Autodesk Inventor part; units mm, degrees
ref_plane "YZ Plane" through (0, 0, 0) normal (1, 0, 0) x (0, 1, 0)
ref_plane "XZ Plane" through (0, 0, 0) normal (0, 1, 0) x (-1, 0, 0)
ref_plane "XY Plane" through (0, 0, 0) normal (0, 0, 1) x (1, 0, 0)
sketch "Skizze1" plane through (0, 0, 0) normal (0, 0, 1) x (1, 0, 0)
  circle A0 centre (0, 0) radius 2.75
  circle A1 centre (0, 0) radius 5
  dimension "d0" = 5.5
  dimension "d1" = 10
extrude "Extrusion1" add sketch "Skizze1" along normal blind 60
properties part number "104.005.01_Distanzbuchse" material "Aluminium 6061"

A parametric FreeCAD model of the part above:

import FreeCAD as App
import Part
import Sketcher
from FreeCAD import Vector
Q = App.Units.Quantity

doc = App.newDocument("Part")
body = doc.addObject("PartDesign::Body", "Body")

# Sketch on XY plane
sketch1 = body.newObject("Sketcher::SketchObject", "Sketch")
sketch1.AttachmentSupport = (doc.getObject("XY_Plane"), [""])
sketch1.MapMode = "FlatFace"
sketch1.addGeometry([
    Part.Circle(Vector(0, 0, 0), Vector(0, 0, 1), 5),
    Part.Circle(Vector(0, 0, 0), Vector(0, 0, 1), 2.75),
], False)
sketch1.addConstraint([
    Sketcher.Constraint("Coincident", 0, 3, -1, 1),
    Sketcher.Constraint("Coincident", 1, 3, -1, 1),
    Sketcher.Constraint("Diameter", 0, Q("10 mm")),
    Sketcher.Constraint("Diameter", 1, Q("5.5 mm")),
])
pad1 = body.newObject("PartDesign::Pad", "Pad")
pad1.Profile = sketch1
pad1.Length = 60

doc.recompute()
